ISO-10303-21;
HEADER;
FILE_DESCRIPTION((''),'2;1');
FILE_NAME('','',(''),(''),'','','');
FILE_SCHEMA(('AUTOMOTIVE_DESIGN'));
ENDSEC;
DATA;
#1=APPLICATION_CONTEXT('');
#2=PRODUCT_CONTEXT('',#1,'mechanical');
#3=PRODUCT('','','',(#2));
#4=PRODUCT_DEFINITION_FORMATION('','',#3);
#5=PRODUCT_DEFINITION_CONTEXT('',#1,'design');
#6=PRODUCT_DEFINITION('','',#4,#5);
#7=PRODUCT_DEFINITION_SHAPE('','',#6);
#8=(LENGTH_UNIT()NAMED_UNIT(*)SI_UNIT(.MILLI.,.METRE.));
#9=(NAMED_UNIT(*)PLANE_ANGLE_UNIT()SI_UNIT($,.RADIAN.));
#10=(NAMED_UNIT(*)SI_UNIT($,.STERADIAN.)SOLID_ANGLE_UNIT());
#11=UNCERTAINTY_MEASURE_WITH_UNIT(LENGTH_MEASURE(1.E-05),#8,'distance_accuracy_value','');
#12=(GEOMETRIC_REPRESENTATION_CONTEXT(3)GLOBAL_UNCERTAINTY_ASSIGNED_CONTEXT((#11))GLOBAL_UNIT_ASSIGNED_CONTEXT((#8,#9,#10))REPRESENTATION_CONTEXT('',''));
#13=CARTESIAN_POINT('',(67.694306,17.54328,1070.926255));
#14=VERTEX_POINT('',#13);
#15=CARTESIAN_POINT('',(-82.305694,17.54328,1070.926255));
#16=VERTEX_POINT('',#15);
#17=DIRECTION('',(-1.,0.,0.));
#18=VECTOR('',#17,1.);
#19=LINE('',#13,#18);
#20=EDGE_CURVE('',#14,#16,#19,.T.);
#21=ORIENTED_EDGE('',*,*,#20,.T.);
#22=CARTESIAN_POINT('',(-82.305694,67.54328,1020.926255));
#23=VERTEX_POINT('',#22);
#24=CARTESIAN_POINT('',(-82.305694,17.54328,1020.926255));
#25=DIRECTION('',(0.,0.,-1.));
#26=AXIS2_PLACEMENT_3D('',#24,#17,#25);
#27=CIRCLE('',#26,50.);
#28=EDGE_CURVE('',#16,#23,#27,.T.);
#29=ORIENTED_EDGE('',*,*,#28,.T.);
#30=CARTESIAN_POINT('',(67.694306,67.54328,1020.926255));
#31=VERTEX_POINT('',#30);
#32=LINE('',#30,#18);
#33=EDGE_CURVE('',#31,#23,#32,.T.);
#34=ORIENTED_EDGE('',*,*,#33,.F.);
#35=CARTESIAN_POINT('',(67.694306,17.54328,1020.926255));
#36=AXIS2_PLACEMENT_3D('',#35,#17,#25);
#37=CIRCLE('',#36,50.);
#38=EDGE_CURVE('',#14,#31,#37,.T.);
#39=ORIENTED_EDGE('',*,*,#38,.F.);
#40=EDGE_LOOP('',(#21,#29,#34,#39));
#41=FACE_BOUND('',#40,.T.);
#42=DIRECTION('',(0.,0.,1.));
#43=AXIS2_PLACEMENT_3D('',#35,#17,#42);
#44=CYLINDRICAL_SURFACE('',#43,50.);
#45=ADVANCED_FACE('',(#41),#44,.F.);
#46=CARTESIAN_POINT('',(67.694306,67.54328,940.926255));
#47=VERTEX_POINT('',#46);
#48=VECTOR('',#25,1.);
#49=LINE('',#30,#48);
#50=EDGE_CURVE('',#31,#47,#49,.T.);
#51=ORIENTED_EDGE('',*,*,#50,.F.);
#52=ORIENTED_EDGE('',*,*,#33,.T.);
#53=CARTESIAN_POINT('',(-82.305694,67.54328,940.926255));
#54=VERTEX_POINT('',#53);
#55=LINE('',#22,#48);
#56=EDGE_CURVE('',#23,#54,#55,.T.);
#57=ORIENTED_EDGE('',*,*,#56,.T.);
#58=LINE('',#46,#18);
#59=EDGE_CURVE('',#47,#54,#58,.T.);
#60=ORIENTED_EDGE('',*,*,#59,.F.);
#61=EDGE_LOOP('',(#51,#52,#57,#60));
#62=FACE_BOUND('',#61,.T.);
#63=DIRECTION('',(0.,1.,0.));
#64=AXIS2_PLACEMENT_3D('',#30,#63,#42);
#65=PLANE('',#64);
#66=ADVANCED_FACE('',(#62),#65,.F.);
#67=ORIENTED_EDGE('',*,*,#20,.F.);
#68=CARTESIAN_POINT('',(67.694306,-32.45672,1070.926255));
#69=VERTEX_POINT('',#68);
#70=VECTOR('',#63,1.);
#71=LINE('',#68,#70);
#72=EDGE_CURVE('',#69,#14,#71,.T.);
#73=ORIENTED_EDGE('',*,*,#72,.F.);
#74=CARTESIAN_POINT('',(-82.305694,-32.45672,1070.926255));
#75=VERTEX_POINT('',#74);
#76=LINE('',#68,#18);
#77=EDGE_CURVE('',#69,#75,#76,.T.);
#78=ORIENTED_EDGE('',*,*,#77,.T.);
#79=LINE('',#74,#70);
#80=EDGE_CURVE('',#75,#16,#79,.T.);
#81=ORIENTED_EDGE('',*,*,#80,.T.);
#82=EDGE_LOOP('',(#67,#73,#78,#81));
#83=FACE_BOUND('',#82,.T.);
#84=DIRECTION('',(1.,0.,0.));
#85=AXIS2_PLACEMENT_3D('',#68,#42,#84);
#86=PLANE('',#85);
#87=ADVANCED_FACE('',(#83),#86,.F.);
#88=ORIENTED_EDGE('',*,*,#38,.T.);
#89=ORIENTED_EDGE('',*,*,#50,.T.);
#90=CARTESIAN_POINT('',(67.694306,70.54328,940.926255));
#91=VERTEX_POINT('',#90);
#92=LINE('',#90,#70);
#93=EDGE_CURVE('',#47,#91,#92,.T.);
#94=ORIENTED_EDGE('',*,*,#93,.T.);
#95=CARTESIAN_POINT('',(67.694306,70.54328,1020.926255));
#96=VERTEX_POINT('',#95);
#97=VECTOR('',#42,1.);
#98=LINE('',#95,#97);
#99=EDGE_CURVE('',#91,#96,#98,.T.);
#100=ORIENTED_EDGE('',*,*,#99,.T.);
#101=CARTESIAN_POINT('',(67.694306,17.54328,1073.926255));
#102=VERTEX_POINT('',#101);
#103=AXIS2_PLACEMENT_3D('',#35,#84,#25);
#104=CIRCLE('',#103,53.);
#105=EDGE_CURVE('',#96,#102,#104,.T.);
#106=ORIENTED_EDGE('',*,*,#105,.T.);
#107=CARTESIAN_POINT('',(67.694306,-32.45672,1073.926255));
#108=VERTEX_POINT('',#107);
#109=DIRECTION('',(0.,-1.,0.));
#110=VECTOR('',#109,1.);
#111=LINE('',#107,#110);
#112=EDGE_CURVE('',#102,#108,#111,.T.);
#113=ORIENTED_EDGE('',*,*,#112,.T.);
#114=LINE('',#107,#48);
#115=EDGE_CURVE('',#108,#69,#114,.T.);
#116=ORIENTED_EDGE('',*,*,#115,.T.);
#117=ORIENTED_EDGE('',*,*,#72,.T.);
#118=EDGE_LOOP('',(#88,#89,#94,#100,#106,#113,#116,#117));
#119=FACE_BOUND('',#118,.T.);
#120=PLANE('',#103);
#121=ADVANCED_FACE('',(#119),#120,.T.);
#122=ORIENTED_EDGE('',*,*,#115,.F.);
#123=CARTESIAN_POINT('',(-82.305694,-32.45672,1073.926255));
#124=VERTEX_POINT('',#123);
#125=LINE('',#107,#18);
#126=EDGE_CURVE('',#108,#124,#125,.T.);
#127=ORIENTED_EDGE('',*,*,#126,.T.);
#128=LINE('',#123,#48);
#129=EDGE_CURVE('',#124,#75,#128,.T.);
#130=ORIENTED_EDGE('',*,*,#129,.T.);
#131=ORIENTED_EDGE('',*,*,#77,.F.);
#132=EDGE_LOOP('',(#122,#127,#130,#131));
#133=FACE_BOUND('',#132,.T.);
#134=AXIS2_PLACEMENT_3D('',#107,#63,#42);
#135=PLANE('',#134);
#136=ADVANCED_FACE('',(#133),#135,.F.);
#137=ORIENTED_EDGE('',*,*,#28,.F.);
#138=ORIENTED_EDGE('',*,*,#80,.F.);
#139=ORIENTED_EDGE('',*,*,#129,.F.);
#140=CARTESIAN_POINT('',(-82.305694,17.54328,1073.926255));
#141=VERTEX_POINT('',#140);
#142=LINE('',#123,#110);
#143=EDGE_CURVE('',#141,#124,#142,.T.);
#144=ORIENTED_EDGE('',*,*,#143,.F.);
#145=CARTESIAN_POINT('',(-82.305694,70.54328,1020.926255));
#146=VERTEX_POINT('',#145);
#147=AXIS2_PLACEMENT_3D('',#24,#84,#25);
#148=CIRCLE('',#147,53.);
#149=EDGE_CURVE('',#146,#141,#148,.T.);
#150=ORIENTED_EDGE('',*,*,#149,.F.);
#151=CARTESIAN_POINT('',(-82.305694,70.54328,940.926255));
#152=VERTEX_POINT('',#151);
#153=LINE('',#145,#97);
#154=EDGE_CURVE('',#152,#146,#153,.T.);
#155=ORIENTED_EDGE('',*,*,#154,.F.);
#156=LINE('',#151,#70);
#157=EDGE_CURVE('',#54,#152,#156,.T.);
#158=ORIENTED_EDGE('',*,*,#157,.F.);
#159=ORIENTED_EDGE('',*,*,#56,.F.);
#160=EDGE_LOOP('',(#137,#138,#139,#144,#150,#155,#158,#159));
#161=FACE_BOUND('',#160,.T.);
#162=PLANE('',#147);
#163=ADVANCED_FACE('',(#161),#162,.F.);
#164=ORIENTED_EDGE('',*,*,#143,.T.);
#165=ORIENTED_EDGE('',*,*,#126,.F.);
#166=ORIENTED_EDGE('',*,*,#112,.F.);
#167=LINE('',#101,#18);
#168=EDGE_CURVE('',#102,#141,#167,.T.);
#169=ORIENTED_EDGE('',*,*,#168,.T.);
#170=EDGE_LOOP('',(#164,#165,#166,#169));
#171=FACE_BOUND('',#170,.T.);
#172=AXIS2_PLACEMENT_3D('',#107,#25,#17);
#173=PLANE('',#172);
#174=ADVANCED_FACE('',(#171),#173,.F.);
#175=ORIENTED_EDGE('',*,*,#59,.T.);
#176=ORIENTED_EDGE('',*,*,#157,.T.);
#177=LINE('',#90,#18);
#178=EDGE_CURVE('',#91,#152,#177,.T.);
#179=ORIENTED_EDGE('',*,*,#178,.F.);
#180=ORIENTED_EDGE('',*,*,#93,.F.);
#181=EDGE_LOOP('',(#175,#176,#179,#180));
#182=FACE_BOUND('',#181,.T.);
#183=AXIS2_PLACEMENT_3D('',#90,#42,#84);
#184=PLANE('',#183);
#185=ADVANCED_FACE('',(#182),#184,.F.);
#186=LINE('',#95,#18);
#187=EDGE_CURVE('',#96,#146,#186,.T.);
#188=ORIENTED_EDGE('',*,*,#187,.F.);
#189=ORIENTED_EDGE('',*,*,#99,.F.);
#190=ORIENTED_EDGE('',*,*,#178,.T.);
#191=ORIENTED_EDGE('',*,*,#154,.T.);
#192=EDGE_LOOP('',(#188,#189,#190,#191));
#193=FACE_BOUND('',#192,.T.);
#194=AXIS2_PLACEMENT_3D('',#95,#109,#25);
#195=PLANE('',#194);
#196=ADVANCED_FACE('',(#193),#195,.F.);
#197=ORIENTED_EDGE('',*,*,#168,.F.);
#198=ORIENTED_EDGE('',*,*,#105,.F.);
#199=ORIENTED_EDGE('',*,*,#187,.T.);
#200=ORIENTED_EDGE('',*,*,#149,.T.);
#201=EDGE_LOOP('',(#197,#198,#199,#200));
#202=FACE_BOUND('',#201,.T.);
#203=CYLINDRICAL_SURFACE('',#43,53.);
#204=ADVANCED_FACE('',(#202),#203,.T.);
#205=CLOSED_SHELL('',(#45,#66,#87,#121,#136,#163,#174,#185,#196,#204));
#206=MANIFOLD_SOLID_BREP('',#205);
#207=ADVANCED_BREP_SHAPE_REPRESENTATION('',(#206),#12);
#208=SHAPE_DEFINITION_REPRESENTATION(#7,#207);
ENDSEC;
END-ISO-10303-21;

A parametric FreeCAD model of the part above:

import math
import FreeCAD as App
import Part
import Sketcher
from FreeCAD import Vector
Q = App.Units.Quantity

doc = App.newDocument("Part")
body = doc.addObject("PartDesign::Body", "Body")

# Sketch on YZ plane
sketch1 = doc.addObject("Sketcher::SketchObject", "Sketch")
body.addObject(sketch1)
sketch1.AttachmentSupport = (doc.YZ_Plane, [""])
sketch1.MapMode = "FlatFace"
sketch1.AttachmentOffset = App.Placement(Vector(0, 0, -7.305694), App.Rotation())
sketch1.addGeometry(Part.LineSegment(Vector(67.5, 1020.9, 0), Vector(67.5, 940.9, 0)), False)
sketch1.addGeometry(Part.LineSegment(Vector(67.5, 940.9, 0), Vector(70.5, 940.9, 0)), False)
sketch1.addGeometry(Part.LineSegment(Vector(70.5, 940.9, 0), Vector(70.5, 1020.9, 0)), False)
sketch1.addGeometry(Part.ArcOfCircle(Part.Circle(Vector(17.5, 1020.9, 0), Vector(0, 0, 1), 53), math.radians(0), math.radians(90)), False)
sketch1.addGeometry(Part.LineSegment(Vector(17.5, 1073.9, 0), Vector(-32.5, 1073.9, 0)), False)
sketch1.addGeometry(Part.LineSegment(Vector(-32.5, 1073.9, 0), Vector(-32.5, 1070.9, 0)), False)
sketch1.addGeometry(Part.LineSegment(Vector(-32.5, 1070.9, 0), Vector(17.5, 1070.9, 0)), False)
sketch1.addGeometry(Part.ArcOfCircle(Part.Circle(Vector(17.5, 1020.9, 0), Vector(0, 0, 1), 50), math.radians(0), math.radians(90)), False)
sketch1.addConstraint(Sketcher.Constraint("Coincident", 0, 2, 1, 1))
sketch1.addConstraint(Sketcher.Constraint("Coincident", 1, 2, 2, 1))
sketch1.addConstraint(Sketcher.Constraint("Tangent", 2, 2, 3, 1))
sketch1.addConstraint(Sketcher.Constraint("Tangent", 3, 2, 4, 1))
sketch1.addConstraint(Sketcher.Constraint("Coincident", 4, 2, 5, 1))
sketch1.addConstraint(Sketcher.Constraint("Coincident", 5, 2, 6, 1))
sketch1.addConstraint(Sketcher.Constraint("Tangent", 6, 2, 7, 2))
sketch1.addConstraint(Sketcher.Constraint("Tangent", 7, 1, 0, 1))
sketch1.addConstraint(Sketcher.Constraint("Vertical", 0))
sketch1.addConstraint(Sketcher.Constraint("Horizontal", 1))
sketch1.addConstraint(Sketcher.Constraint("Vertical", 2))
sketch1.addConstraint(Sketcher.Constraint("Horizontal", 4))
sketch1.addConstraint(Sketcher.Constraint("Vertical", 5))
sketch1.addConstraint(Sketcher.Constraint("Horizontal", 6))
sketch1.addConstraint(Sketcher.Constraint("Coincident", 7, 3, 3, 3))
sketch1.addConstraint(Sketcher.Constraint("Radius", 3, Q("53 mm")))
sketch1.addConstraint(Sketcher.Constraint("Radius", 7, Q("50 mm")))
sketch1.addConstraint(Sketcher.Constraint("DistanceX", 4, 2, 4, 1, Q("50 mm")))
sketch1.addConstraint(Sketcher.Constraint("DistanceY", 0, 2, 0, 1, Q("80 mm")))
sketch1.addConstraint(Sketcher.Constraint("DistanceX", -1, 1, 3, 3, Q("17.54328 mm")))
sketch1.addConstraint(Sketcher.Constraint("DistanceY", -1, 1, 3, 3, Q("1020.926255 mm")))
pad1 = doc.addObject("PartDesign::Pad", "Pad")
body.addObject(pad1)
pad1.Profile = sketch1
pad1.Length = 150
pad1.Midplane = True

doc.recompute()
